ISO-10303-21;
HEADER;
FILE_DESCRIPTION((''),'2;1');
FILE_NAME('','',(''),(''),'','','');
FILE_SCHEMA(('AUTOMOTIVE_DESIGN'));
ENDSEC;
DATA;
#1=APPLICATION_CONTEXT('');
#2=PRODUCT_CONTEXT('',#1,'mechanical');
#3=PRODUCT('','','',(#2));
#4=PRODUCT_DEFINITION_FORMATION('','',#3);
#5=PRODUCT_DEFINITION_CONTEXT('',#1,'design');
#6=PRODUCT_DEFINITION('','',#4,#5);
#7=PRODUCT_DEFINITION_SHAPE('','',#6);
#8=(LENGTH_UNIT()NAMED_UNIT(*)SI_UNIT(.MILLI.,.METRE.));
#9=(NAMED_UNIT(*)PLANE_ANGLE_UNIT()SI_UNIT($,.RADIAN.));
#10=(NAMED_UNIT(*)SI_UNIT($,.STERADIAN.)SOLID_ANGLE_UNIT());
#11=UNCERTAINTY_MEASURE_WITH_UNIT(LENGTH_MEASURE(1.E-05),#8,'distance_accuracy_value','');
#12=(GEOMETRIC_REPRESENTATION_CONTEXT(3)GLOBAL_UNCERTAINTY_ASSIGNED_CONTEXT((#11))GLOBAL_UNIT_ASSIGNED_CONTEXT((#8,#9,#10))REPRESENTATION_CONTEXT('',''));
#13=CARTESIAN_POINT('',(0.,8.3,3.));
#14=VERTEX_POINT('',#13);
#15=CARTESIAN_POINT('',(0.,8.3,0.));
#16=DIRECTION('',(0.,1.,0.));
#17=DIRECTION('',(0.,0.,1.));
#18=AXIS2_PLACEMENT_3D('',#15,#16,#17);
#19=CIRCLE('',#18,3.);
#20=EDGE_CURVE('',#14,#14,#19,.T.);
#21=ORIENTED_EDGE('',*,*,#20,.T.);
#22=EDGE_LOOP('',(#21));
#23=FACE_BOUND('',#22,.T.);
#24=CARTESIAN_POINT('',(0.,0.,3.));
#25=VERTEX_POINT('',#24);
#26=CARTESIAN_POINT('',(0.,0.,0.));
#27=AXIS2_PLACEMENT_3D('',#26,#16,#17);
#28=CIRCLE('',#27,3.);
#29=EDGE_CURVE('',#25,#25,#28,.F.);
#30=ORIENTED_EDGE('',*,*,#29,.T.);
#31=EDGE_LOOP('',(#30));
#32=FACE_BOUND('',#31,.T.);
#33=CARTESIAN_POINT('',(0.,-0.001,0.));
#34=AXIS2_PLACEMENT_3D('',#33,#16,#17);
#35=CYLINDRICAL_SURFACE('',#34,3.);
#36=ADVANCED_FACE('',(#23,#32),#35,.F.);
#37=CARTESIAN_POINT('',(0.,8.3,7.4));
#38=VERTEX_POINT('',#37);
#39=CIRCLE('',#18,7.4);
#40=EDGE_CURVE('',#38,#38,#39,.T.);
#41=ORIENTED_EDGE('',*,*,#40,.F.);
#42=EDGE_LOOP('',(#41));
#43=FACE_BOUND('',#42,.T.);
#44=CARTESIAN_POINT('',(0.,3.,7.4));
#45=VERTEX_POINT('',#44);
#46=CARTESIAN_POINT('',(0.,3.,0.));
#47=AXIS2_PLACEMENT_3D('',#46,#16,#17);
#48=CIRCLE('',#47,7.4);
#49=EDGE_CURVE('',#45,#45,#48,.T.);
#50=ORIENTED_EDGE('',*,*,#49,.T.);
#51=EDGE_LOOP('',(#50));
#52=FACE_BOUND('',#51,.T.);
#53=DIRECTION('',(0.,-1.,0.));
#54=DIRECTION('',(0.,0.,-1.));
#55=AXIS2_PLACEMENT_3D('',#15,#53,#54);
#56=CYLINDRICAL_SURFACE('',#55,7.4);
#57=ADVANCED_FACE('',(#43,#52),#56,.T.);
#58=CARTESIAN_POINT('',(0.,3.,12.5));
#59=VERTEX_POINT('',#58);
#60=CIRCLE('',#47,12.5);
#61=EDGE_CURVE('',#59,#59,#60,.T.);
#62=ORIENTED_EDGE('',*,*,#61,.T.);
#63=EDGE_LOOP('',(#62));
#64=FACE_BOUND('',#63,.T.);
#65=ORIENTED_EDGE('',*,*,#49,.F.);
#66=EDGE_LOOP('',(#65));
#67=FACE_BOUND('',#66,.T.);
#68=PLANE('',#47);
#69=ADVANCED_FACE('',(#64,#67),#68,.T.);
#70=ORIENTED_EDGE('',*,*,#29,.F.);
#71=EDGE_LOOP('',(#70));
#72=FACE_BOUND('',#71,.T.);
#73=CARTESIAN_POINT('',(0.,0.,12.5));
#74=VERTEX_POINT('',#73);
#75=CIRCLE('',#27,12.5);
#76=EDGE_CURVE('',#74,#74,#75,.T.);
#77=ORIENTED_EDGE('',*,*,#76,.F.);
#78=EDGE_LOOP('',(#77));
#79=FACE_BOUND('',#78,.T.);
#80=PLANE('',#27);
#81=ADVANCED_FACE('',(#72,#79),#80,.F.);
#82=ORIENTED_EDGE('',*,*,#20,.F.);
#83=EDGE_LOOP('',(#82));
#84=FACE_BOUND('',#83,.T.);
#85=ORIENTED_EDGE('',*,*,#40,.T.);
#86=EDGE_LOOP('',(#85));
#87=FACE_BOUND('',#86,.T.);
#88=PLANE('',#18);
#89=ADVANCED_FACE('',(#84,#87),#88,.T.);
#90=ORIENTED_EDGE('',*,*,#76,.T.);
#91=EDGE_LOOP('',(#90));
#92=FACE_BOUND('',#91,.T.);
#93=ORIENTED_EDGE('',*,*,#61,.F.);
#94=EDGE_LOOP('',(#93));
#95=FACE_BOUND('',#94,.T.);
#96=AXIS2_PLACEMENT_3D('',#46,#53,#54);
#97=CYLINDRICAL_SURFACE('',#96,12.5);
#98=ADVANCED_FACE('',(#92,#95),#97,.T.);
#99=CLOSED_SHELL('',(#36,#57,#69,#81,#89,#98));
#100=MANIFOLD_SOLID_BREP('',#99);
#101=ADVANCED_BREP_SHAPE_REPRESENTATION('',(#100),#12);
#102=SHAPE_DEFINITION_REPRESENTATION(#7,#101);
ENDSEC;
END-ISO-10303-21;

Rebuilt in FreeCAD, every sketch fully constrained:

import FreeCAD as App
import Part
import Sketcher

doc = App.newDocument("Part")
body = doc.addObject("PartDesign::Body", "Body")

sketch1 = body.newObject("Sketcher::SketchObject", "Sketch")
sketch1.AttachmentSupport = (doc.getObject("XZ_Plane"), [""])
sketch1.MapMode = "FlatFace"
sketch1.addGeometry(Part.Circle(App.Vector(0, 0, 0), App.Vector(0, 0, 1), 12), False)
sketch1.addConstraint([
    Sketcher.Constraint("Coincident", 0, 3, -1, 1),
    Sketcher.Constraint("Diameter", 0, 25.0),
])
pad1 = body.newObject("PartDesign::Pad", "Pad")
pad1.Profile = sketch1
pad1.Length = 3
pad1.Reversed = True

sketch2 = body.newObject("Sketcher::SketchObject", "Sketch001")
sketch2.AttachmentSupport = (doc.getObject("XZ_Plane"), [""])
sketch2.MapMode = "FlatFace"
sketch2.AttachmentOffset = App.Placement(App.Vector(0, 0, -3), App.Rotation())
sketch2.addGeometry(Part.Circle(App.Vector(0, 0, 0), App.Vector(0, 0, 1), 7), False)
sketch2.addConstraint([
    Sketcher.Constraint("Coincident", 0, 3, -1, 1),
    Sketcher.Constraint("Diameter", 0, 14.8),
])
pad2 = body.newObject("PartDesign::Pad", "Pad001")
pad2.Profile = sketch2
pad2.Length = 5.3
pad2.Reversed = True

sketch3 = body.newObject("Sketcher::SketchObject", "Sketch002")
sketch3.AttachmentSupport = (doc.getObject("XZ_Plane"), [""])
sketch3.MapMode = "FlatFace"
sketch3.AttachmentOffset = App.Placement(App.Vector(0, 0, -8.3), App.Rotation())
sketch3.addGeometry(Part.Circle(App.Vector(0, 0, 0), App.Vector(0, 0, 1), 3), False)
sketch3.addConstraint([
    Sketcher.Constraint("Coincident", 0, 3, -1, 1),
    Sketcher.Constraint("Diameter", 0, 6.0),
])
pocket1 = body.newObject("PartDesign::Pocket", "Pocket")
pocket1.Profile = sketch3
pocket1.Type = "UpToFirst"
pocket1.Reversed = True

doc.recompute()
